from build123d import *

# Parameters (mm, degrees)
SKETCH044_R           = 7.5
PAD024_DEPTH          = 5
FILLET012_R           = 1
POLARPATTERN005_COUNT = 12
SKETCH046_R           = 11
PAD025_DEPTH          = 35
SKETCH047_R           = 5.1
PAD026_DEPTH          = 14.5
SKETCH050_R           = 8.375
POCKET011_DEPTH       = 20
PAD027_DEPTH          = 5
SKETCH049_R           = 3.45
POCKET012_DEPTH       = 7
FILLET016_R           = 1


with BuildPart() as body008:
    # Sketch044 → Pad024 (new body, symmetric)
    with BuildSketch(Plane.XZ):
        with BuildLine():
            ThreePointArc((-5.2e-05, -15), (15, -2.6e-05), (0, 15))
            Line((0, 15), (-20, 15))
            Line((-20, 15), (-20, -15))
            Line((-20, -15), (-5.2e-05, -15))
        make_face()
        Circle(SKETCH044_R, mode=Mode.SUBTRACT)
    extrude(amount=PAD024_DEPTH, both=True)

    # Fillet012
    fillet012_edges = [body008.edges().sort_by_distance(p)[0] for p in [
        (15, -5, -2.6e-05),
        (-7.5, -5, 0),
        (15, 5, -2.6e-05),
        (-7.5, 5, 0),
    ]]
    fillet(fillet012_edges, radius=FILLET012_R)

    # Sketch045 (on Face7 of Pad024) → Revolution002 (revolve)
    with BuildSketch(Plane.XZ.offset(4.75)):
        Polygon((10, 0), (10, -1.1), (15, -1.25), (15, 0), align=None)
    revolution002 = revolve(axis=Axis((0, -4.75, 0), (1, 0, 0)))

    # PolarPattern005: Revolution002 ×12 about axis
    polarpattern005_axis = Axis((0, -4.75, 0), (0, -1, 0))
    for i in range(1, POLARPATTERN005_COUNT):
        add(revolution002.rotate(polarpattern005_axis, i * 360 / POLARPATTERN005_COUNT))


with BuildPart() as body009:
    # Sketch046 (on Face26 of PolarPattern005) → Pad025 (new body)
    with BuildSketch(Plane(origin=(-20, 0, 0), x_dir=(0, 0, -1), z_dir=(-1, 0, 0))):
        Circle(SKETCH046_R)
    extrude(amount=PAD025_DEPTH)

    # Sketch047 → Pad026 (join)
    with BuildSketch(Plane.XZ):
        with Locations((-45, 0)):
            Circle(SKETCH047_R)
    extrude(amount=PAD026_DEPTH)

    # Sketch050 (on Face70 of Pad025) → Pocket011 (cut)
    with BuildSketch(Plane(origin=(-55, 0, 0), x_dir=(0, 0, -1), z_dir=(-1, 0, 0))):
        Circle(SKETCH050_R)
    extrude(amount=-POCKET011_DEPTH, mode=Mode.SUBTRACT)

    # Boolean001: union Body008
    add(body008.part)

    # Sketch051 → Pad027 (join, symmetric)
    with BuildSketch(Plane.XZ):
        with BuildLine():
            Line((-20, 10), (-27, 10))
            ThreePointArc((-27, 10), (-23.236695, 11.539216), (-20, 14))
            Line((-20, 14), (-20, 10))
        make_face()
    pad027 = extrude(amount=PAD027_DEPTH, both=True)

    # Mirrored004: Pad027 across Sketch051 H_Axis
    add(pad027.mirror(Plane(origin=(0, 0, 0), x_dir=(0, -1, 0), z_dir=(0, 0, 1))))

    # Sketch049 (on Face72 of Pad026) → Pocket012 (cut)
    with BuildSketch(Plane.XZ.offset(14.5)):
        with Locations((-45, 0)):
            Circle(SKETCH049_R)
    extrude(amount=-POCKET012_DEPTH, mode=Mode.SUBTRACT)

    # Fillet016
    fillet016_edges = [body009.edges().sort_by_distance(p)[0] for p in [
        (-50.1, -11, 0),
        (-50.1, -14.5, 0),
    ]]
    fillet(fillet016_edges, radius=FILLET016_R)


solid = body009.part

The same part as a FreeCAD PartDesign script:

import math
import FreeCAD as App
import Part
import Sketcher
from FreeCAD import Vector


def edges_at(feature, points):
    """Names of the edges that pass closest to the given points."""
    edges = feature.Shape.Edges
    near = lambda p: min(range(len(edges)), key=lambda i: edges[i].distToShape(Part.Vertex(*p))[0])
    return sorted({f"Edge{near(p) + 1}" for p in points})

doc = App.newDocument("Part")
body = doc.addObject("PartDesign::Body", "Body")

sketch1 = body.newObject("Sketcher::SketchObject", "Sketch")
sketch1.AttachmentSupport = (doc.getObject("XZ_Plane"), [""])
sketch1.MapMode = "FlatFace"
sketch1.addGeometry([
    Part.ArcOfCircle(Part.Circle(Vector(0, 0, 0), Vector(0, 0, 1), 15), math.radians(-90), math.radians(90)),
    Part.LineSegment(Vector(0, 15, 0), Vector(-20, 15, 0)),
    Part.LineSegment(Vector(-20, 15, 0), Vector(-20, -15, 0)),
    Part.LineSegment(Vector(-20, -15, 0), Vector(0, -15, 0)),
    Part.Circle(Vector(0, 0, 0), Vector(0, 0, 1), 8),
], False)
sketch1.addConstraint([
    Sketcher.Constraint("Tangent", 0, 2, 1, 1),
    Sketcher.Constraint("Coincident", 1, 2, 2, 1),
    Sketcher.Constraint("Coincident", 2, 2, 3, 1),
    Sketcher.Constraint("Coincident", 3, 2, 0, 1),
    Sketcher.Constraint("Horizontal", 1),
    Sketcher.Constraint("Vertical", 2),
    Sketcher.Constraint("Horizontal", 3),
    Sketcher.Constraint("Coincident", 0, 3, -1, 1),
    Sketcher.Constraint("Coincident", 4, 3, -1, 1),
    Sketcher.Constraint("Diameter", 4, 15.0),
    Sketcher.Constraint("Radius", 0, 15.0),
    Sketcher.Constraint("DistanceX", 1, 2, 1, 1, 20.0),
    Sketcher.Constraint("DistanceX", 3, 1, 3, 2, 19.999948),
])
pad1 = body.newObject("PartDesign::Pad", "Pad")
pad1.Profile = sketch1
pad1.Length = 10
pad1.Midplane = True
doc.recompute()

fillet = body.newObject("PartDesign::Fillet", "Fillet")
fillet.Base = (pad1, edges_at(pad1, [
    (15, -5, 0),
    (-7.5, -5, 0),
    (15, 5, 0),
    (-7.5, 5, 0),
]))
fillet.Radius = 1

sketch2 = body.newObject("Sketcher::SketchObject", "Sketch001")
sketch2.AttachmentSupport = (doc.getObject("XZ_Plane"), [""])
sketch2.MapMode = "FlatFace"
sketch2.AttachmentOffset = App.Placement(Vector(0, 0, 4.75), App.Rotation())
sketch2.addGeometry([
    Part.LineSegment(Vector(10, 0, 0), Vector(10, -1.1, 0)),
    Part.LineSegment(Vector(10, -1.1, 0), Vector(15, -1.2, 0)),
    Part.LineSegment(Vector(15, -1.2, 0), Vector(15, 0, 0)),
    Part.LineSegment(Vector(15, 0, 0), Vector(10, 0, 0)),
], False)
sketch2.addConstraint([
    Sketcher.Constraint("Coincident", 0, 2, 1, 1),
    Sketcher.Constraint("Coincident", 1, 2, 2, 1),
    Sketcher.Constraint("Coincident", 2, 2, 3, 1),
    Sketcher.Constraint("Coincident", 3, 2, 0, 1),
    Sketcher.Constraint("Vertical", 0),
    Sketcher.Constraint("Vertical", 2),
    Sketcher.Constraint("Horizontal", 3),
    Sketcher.Constraint("PointOnObject", 2, 2, -1),
    Sketcher.Constraint("DistanceX", 3, 2, 3, 1, 5.0),
    Sketcher.Constraint("DistanceY", 0, 2, 0, 1, 1.1),
    Sketcher.Constraint("DistanceX", -1, 1, 0, 2, 10.0),
    Sketcher.Constraint("DistanceY", 2, 1, 2, 2, 1.25),
])
revolution = body.newObject("PartDesign::Revolution", "Revolution")
revolution.Profile = sketch2
revolution.ReferenceAxis = (sketch2, ["H_Axis"])
revolution.Angle = 360
doc.recompute()

polarpattern = body.newObject("PartDesign::PolarPattern", "PolarPattern")
polarpattern.Originals = [revolution]
polarpattern.Axis = (doc.getObject("Y_Axis"), [""])
polarpattern.Angle = 360
polarpattern.Occurrences = 12
body.Tip = polarpattern
body2 = doc.addObject("PartDesign::Body", "Body001")

sketch3 = body2.newObject("Sketcher::SketchObject", "Sketch002")
sketch3.AttachmentSupport = (doc.getObject("YZ_Plane001"), [""])
sketch3.MapMode = "FlatFace"
sketch3.AttachmentOffset = App.Placement(Vector(0, 0, -20), App.Rotation())
sketch3.addGeometry(Part.Circle(Vector(0, 0, 0), Vector(0, 0, 1), 11), False)
sketch3.addConstraint([
    Sketcher.Constraint("Coincident", 0, 3, -1, 1),
    Sketcher.Constraint("Diameter", 0, 22.0),
])
pad2 = body2.newObject("PartDesign::Pad", "Pad001")
pad2.Profile = sketch3
pad2.Length = 35
pad2.Reversed = True

sketch4 = body2.newObject("Sketcher::SketchObject", "Sketch003")
sketch4.AttachmentSupport = (doc.getObject("XZ_Plane001"), [""])
sketch4.MapMode = "FlatFace"
sketch4.addGeometry(Part.Circle(Vector(-45, 0, 0), Vector(0, 0, 1), 5), False)
sketch4.addConstraint([
    Sketcher.Constraint("PointOnObject", 0, 3, -1),
    Sketcher.Constraint("Diameter", 0, 10.2),
    Sketcher.Constraint("DistanceX", 0, 3, -1, 1, 45.0),
])
pad3 = body2.newObject("PartDesign::Pad", "Pad002")
pad3.Profile = sketch4
pad3.Length = 14.5

sketch5 = body2.newObject("Sketcher::SketchObject", "Sketch004")
sketch5.AttachmentSupport = (doc.getObject("YZ_Plane001"), [""])
sketch5.MapMode = "FlatFace"
sketch5.AttachmentOffset = App.Placement(Vector(0, 0, -55), App.Rotation())
sketch5.addGeometry(Part.Circle(Vector(0, 0, 0), Vector(0, 0, 1), 8), False)
sketch5.addConstraint([
    Sketcher.Constraint("Coincident", 0, 3, -1, 1),
    Sketcher.Constraint("Diameter", 0, 16.75),
])
pocket1 = body2.newObject("PartDesign::Pocket", "Pocket")
pocket1.Profile = sketch5
pocket1.Length = 20
pocket1.Reversed = True
doc.recompute()

boolean = body2.newObject("PartDesign::Boolean", "Boolean")
boolean.Type = "Fuse"
boolean.addObjects([body])

sketch6 = body2.newObject("Sketcher::SketchObject", "Sketch005")
sketch6.AttachmentSupport = (doc.getObject("XZ_Plane001"), [""])
sketch6.MapMode = "FlatFace"
sketch6.addGeometry([
    Part.LineSegment(Vector(-27, 10, 0), Vector(-20, 10, 0)),
    Part.LineSegment(Vector(-20, 10, 0), Vector(-20, 14, 0)),
    Part.ArcOfCircle(Part.Circle(Vector(-31, 25.1, 0), Vector(0, 0, 1), 15.6), math.radians(-75), math.radians(-45)),
], False)
sketch6.addConstraint([
    Sketcher.Constraint("Coincident", 0, 2, 1, 1),
    Sketcher.Constraint("Coincident", 1, 2, 2, 2),
    Sketcher.Constraint("Coincident", 2, 1, 0, 1),
    Sketcher.Constraint("Horizontal", 0),
    Sketcher.Constraint("Vertical", 1),
    Sketcher.Constraint("DistanceX", 0, 1, 0, 2, 7.0),
    Sketcher.Constraint("DistanceY", 1, 1, 1, 2, 4.0),
    Sketcher.Constraint("DistanceX", 0, 2, -1, 1, 20.0),
    Sketcher.Constraint("DistanceY", -1, 1, 0, 2, 10.0),
    Sketcher.Constraint("Radius", 2, 15.57508),
])
pad4 = body2.newObject("PartDesign::Pad", "Pad003")
pad4.Profile = sketch6
pad4.Length = 10
pad4.Midplane = True
doc.recompute()

mirrored = body2.newObject("PartDesign::Mirrored", "Mirrored")
mirrored.Originals = [pad4]
mirrored.MirrorPlane = (doc.getObject("XY_Plane001"), [""])
body2.Tip = mirrored

sketch7 = body2.newObject("Sketcher::SketchObject", "Sketch006")
sketch7.AttachmentSupport = (doc.getObject("XZ_Plane001"), [""])
sketch7.MapMode = "FlatFace"
sketch7.AttachmentOffset = App.Placement(Vector(0, 0, 14.5), App.Rotation())
sketch7.addGeometry(Part.Circle(Vector(-45, 0, 0), Vector(0, 0, 1), 3.5), False)
sketch7.addConstraint([
    Sketcher.Constraint("PointOnObject", 0, 3, -1),
    Sketcher.Constraint("Diameter", 0, 6.9),
    Sketcher.Constraint("DistanceX", 0, 3, -1, 1, 45.0),
])
pocket2 = body2.newObject("PartDesign::Pocket", "Pocket001")
pocket2.Profile = sketch7
pocket2.Length = 7
doc.recompute()

fillet2 = body2.newObject("PartDesign::Fillet", "Fillet001")
fillet2.Base = (pocket2, edges_at(pocket2, [(-50.1, -11, 0), (-50.1, -14.5, 0)]))
fillet2.Radius = 1

doc.recompute()
